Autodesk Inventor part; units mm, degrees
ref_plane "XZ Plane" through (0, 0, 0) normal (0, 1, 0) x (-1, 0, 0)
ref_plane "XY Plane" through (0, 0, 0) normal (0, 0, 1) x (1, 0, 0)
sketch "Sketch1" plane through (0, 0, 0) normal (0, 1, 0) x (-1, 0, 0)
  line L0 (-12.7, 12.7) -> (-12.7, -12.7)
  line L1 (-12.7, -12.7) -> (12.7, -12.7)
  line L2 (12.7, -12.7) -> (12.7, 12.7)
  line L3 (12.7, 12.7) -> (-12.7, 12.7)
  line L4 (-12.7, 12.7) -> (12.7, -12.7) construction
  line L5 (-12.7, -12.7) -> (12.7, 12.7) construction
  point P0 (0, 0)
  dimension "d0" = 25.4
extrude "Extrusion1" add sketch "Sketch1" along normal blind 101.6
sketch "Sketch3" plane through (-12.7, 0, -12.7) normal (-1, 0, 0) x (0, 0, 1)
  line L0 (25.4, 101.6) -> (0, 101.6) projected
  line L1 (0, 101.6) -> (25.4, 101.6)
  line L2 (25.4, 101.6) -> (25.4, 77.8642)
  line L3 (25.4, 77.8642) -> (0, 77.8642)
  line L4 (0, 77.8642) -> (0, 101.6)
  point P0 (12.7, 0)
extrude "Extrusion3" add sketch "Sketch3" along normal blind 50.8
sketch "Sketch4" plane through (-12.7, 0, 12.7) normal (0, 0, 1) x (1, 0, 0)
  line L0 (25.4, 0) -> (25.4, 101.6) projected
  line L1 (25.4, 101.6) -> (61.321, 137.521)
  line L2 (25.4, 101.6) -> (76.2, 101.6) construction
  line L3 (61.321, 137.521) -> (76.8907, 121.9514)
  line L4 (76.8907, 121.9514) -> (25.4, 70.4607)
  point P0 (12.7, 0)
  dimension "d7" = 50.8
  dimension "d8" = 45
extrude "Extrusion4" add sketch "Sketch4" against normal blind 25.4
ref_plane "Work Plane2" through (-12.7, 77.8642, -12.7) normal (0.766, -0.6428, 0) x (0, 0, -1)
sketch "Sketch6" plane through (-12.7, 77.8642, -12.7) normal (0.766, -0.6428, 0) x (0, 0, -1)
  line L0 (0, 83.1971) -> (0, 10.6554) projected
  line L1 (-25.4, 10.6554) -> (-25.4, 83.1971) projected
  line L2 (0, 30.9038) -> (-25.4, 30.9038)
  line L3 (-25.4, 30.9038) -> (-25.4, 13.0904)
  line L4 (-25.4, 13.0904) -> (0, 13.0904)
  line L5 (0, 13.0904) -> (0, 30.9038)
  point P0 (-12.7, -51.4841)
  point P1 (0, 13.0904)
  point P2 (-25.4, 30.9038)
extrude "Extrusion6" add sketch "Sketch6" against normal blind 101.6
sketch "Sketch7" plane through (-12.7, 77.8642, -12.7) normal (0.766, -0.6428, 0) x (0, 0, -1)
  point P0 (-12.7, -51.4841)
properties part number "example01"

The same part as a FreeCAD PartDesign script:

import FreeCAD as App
import Part
import Sketcher

V = App.Vector
Q = App.Units.Quantity

doc = App.newDocument("Part")
params = doc.addObject("Spreadsheet::Sheet", "Params")
for row, (alias, value) in enumerate([
    ("sketch1_width", "1 in"),
    ("pad1_length", "4 in"),
    ("sketch2_height", "1 in"),
    ("pad2_length", "2 in"),
    ("sketch3_length", "2 in"),
    ("pad3_length", "1 in"),
    ("sketch4_width", "1 in"),
    ("pad4_length", "4 in"),
], start=1):
    params.set(f"A{row}", alias)
    params.set(f"B{row}", "=" + value)
    params.setAlias(f"B{row}", alias)

body = doc.addObject("PartDesign::Body", "Body")

sketch1 = doc.addObject("Sketcher::SketchObject", "Sketch")
body.addObject(sketch1)
sketch1.AttachmentSupport = (doc.XZ_Plane, [""])
sketch1.MapMode = "FlatFace"
sketch1.addGeometry([
    Part.LineSegment(V(-12.7, 12.7, 0), V(12.7, 12.7, 0)),
    Part.LineSegment(V(12.7, 12.7, 0), V(12.7, -12.7, 0)),
    Part.LineSegment(V(12.7, -12.7, 0), V(-12.7, -12.7, 0)),
    Part.LineSegment(V(-12.7, -12.7, 0), V(-12.7, 12.7, 0)),
], False)
sketch1.addConstraint([
    Sketcher.Constraint("Coincident", 0, 2, 1, 1),
    Sketcher.Constraint("Coincident", 1, 2, 2, 1),
    Sketcher.Constraint("Coincident", 2, 2, 3, 1),
    Sketcher.Constraint("Coincident", 3, 2, 0, 1),
    Sketcher.Constraint("Horizontal", 0),
    Sketcher.Constraint("Vertical", 1),
    Sketcher.Constraint("Horizontal", 2),
    Sketcher.Constraint("Vertical", 3),
    Sketcher.Constraint("Symmetric", 0, 2, 2, 2, -1, 1),
    Sketcher.Constraint("Equal", 2, 1),
    Sketcher.Constraint("DistanceX", 0, 1, 0, 2, Q("1 in")),
])
sketch1.setExpression("Constraints[10]", "Params.sketch1_width")
pad1 = doc.addObject("PartDesign::Pad", "Pad")
body.addObject(pad1)
pad1.Profile = sketch1
pad1.setExpression("Length", "Params.pad1_length")
pad1.Reversed = True

sketch2 = doc.addObject("Sketcher::SketchObject", "Sketch001")
body.addObject(sketch2)
sketch2.AttachmentSupport = (doc.YZ_Plane, [""])
sketch2.MapMode = "FlatFace"
sketch2.AttachmentOffset = App.Placement(V(0, 0, -0.5 * 25.4), App.Rotation())
sketch2.addGeometry([
    Part.LineSegment(V(77.8642, 12.7, 0), V(101.6, 12.7, 0)),
    Part.LineSegment(V(101.6, 12.7, 0), V(101.6, -12.7, 0)),
    Part.LineSegment(V(101.6, -12.7, 0), V(77.8642, -12.7, 0)),
    Part.LineSegment(V(77.8642, -12.7, 0), V(77.8642, 12.7, 0)),
], False)
sketch2.addConstraint([
    Sketcher.Constraint("Coincident", 0, 2, 1, 1),
    Sketcher.Constraint("Coincident", 1, 2, 2, 1),
    Sketcher.Constraint("Coincident", 2, 2, 3, 1),
    Sketcher.Constraint("Coincident", 3, 2, 0, 1),
    Sketcher.Constraint("Horizontal", 0),
    Sketcher.Constraint("Vertical", 1),
    Sketcher.Constraint("Horizontal", 2),
    Sketcher.Constraint("Vertical", 3),
    Sketcher.Constraint("DistanceY", 1, 2, 1, 1, Q("1 in")),
    Sketcher.Constraint("DistanceX", -1, 1, 0, 2, Q("4 in")),
    Sketcher.Constraint("DistanceY", -1, 1, 0, 2, Q("0.5 in")),
    Sketcher.Constraint("DistanceX", 0, 1, 0, 2, Q("23.7358 mm")),
])
sketch2.setExpression("Constraints[8]", "Params.sketch2_height")
pad2 = doc.addObject("PartDesign::Pad", "Pad001")
body.addObject(pad2)
pad2.Profile = sketch2
pad2.setExpression("Length", "Params.pad2_length")
pad2.Reversed = True

sketch3 = doc.addObject("Sketcher::SketchObject", "Sketch002")
body.addObject(sketch3)
sketch3.AttachmentSupport = (doc.XY_Plane, [""])
sketch3.MapMode = "FlatFace"
sketch3.AttachmentOffset = App.Placement(V(0, 0, 0.5 * 25.4), App.Rotation())
sketch3.addGeometry([
    Part.LineSegment(V(12.7, 101.6, 0), V(12.7, 70.4607, 0)),
    Part.LineSegment(V(12.7, 70.4607, 0), V(64.1907, 121.9514, 0)),
    Part.LineSegment(V(64.1907, 121.9514, 0), V(48.621, 137.521, 0)),
    Part.LineSegment(V(48.621, 137.521, 0), V(12.7, 101.6, 0)),
], False)
sketch3.addConstraint([
    Sketcher.Constraint("Coincident", 0, 2, 1, 1),
    Sketcher.Constraint("Coincident", 1, 2, 2, 1),
    Sketcher.Constraint("Coincident", 2, 2, 3, 1),
    Sketcher.Constraint("Coincident", 3, 2, 0, 1),
    Sketcher.Constraint("Vertical", 0),
    Sketcher.Constraint("Perpendicular", 1, 2),
    Sketcher.Constraint("Perpendicular", 2, 3),
    Sketcher.Constraint("Distance", 3, Q("2 in")),
    Sketcher.Constraint("Angle", 1, Q("45 deg")),
    Sketcher.Constraint("DistanceY", -1, 1, 3, 2, Q("4 in")),
    Sketcher.Constraint("DistanceX", -1, 1, 0, 2, Q("0.5 in")),
    Sketcher.Constraint("DistanceY", 0, 2, 0, 1, Q("31.1393 mm")),
])
sketch3.setExpression("Constraints[7]", "Params.sketch3_length")
pad3 = doc.addObject("PartDesign::Pad", "Pad002")
body.addObject(pad3)
pad3.Profile = sketch3
pad3.setExpression("Length", "Params.pad3_length")
pad3.Reversed = True

sketch4 = doc.addObject("Sketcher::SketchObject", "Sketch003")
body.addObject(sketch4)
sketch4.Placement = App.Placement(V(-12.7, 77.8642, -12.7), App.Rotation(V(0, 0, -1), V(0.64278761, 0.766044443, 0), V(0.766044443, -0.64278761, 0), "ZXY"))
sketch4.addGeometry([
    Part.LineSegment(V(0, 13.0904, 0), V(0, 30.9038, 0)),
    Part.LineSegment(V(0, 30.9038, 0), V(-25.4, 30.9038, 0)),
    Part.LineSegment(V(-25.4, 30.9038, 0), V(-25.4, 13.0904, 0)),
    Part.LineSegment(V(-25.4, 13.0904, 0), V(0, 13.0904, 0)),
], False)
sketch4.addConstraint([
    Sketcher.Constraint("Coincident", 0, 2, 1, 1),
    Sketcher.Constraint("Coincident", 1, 2, 2, 1),
    Sketcher.Constraint("Coincident", 2, 2, 3, 1),
    Sketcher.Constraint("Coincident", 3, 2, 0, 1),
    Sketcher.Constraint("Vertical", 0),
    Sketcher.Constraint("Horizontal", 1),
    Sketcher.Constraint("Vertical", 2),
    Sketcher.Constraint("Horizontal", 3),
    Sketcher.Constraint("PointOnObject", 0, 2, -2),
    Sketcher.Constraint("DistanceX", 1, 2, 1, 1, Q("1 in")),
    Sketcher.Constraint("DistanceY", 0, 1, 0, 2, Q("17.8134 mm")),
    Sketcher.Constraint("DistanceY", -1, 1, 0, 2, Q("30.9038 mm")),
])
sketch4.setExpression("Constraints[9]", "Params.sketch4_width")
pad4 = doc.addObject("PartDesign::Pad", "Pad003")
body.addObject(pad4)
pad4.Profile = sketch4
pad4.setExpression("Length", "Params.pad4_length")
pad4.Reversed = True

doc.recompute()
